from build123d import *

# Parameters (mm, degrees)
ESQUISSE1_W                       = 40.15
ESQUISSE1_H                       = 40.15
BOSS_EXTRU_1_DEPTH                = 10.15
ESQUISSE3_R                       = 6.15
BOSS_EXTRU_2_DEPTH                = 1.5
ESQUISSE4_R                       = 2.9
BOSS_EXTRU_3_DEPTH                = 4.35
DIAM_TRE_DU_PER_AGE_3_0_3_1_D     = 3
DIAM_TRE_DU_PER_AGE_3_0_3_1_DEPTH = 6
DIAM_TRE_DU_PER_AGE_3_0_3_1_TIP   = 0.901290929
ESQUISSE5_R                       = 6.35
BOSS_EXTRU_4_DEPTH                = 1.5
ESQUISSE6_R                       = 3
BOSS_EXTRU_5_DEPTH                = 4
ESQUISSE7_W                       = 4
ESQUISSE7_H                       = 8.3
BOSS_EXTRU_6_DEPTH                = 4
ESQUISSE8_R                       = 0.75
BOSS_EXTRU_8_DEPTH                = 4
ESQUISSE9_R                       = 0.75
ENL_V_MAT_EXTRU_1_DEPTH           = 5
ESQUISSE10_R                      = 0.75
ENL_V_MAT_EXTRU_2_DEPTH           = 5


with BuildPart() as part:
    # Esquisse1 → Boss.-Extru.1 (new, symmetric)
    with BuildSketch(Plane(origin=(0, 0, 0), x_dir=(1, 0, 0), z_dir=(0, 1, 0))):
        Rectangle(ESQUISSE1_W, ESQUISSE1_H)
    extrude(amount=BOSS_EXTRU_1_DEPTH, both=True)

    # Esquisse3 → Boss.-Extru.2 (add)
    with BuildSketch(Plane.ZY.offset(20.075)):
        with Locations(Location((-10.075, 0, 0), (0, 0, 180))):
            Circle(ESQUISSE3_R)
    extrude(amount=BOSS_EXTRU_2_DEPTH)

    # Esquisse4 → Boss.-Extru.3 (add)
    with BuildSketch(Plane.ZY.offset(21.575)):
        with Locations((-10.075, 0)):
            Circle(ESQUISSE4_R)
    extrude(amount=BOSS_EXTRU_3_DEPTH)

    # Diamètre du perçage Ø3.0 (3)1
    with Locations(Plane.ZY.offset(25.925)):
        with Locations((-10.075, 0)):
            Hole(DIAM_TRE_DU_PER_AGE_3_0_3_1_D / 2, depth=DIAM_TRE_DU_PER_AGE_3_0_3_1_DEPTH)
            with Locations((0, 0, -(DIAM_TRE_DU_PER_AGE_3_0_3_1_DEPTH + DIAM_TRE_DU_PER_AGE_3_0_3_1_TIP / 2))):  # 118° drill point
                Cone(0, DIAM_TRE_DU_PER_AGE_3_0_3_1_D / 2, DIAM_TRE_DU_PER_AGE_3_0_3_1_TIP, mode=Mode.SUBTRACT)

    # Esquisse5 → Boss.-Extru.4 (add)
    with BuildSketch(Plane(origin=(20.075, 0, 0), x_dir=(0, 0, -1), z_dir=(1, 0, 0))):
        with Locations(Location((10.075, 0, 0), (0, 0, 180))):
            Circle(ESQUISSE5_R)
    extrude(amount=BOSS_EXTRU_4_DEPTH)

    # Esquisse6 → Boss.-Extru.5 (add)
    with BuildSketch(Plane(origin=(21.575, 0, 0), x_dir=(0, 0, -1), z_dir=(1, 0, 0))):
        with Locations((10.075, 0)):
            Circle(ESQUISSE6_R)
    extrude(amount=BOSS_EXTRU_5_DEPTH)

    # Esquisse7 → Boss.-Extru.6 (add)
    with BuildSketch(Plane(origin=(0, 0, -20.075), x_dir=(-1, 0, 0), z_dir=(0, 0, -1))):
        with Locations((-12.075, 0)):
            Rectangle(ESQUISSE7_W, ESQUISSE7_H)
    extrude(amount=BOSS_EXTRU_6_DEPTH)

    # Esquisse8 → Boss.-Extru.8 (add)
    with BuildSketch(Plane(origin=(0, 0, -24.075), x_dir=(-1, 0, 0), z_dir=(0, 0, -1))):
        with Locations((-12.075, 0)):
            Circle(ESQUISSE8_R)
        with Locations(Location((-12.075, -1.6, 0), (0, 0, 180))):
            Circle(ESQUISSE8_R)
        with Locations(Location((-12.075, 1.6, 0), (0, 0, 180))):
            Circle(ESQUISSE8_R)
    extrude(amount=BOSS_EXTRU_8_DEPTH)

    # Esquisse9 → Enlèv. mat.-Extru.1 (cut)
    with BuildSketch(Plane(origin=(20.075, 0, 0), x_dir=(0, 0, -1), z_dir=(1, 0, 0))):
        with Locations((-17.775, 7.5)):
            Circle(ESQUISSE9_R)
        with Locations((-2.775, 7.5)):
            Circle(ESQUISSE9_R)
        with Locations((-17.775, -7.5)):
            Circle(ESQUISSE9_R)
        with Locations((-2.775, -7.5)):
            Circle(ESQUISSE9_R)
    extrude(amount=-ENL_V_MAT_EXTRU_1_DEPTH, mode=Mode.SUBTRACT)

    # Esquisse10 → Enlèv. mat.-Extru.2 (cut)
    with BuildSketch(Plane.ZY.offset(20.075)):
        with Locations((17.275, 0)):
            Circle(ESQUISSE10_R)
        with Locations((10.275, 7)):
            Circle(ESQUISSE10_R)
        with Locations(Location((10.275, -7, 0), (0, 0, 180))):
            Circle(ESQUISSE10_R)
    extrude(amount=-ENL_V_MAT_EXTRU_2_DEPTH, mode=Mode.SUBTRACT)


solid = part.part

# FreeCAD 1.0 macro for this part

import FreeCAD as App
import Part
import Sketcher
Q = App.Units.Quantity


def add_polygon(sketch, points):
    """Adds a closed chain of lines whose ends are joined by coincident constraints."""
    first, n = sketch.GeometryCount, len(points)
    for a, b in zip(points, points[1:] + points[:1]):
        sketch.addGeometry(Part.LineSegment(App.Vector(*a, 0), App.Vector(*b, 0)), False)
    for i in range(n):
        sketch.addConstraint(Sketcher.Constraint("Coincident", first + i, 2, first + (i + 1) % n, 1))

doc = App.newDocument("Part")
params = doc.addObject("Spreadsheet::Sheet", "Params")
for row, (alias, value) in enumerate([
    ("sketch1_width", "40.15 mm"),
    ("pad1_length", "20.3 mm"),
    ("sketch2_diameter", "12.3 mm"),
    ("pad2_length", "1.5 mm"),
    ("sketch3_diameter", "5.8 mm"),
    ("pad3_length", "4.35 mm"),
    ("sketch4_diameter", "3 mm"),
    ("hole_diameter", "3 mm"),
    ("hole_depth", "6 mm"),
    ("sketch5_diameter", "12.7 mm"),
    ("pad4_length", "1.5 mm"),
    ("sketch6_diameter", "6 mm"),
    ("pad5_length", "4 mm"),
    ("sketch7_width", "4 mm"),
    ("sketch7_height", "8.3 mm"),
    ("pad6_length", "4 mm"),
    ("sketch8_diameter", "1.5 mm"),
    ("pad7_length", "4 mm"),
    ("sketch9_diameter", "1.5 mm"),
    ("pocket1_length", "5 mm"),
    ("sketch10_diameter", "1.5 mm"),
    ("pocket2_length", "5 mm"),
], start=1):
    params.set(f"A{row}", alias)
    params.set(f"B{row}", "=" + value)
    params.setAlias(f"B{row}", alias)

body = doc.addObject("PartDesign::Body", "Body")

sketch1 = body.newObject("Sketcher::SketchObject", "Sketch")
sketch1.AttachmentSupport = (doc.getObject("XZ_Plane"), [""])
sketch1.MapMode = "FlatFace"
add_polygon(sketch1, [(-20.075, -20.075), (-20.075, 20.075), (20.075, 20.075), (20.075, -20.075)])
sketch1.addConstraint(Sketcher.Constraint("Vertical", 0))
sketch1.addConstraint(Sketcher.Constraint("Horizontal", 1))
sketch1.addConstraint(Sketcher.Constraint("Vertical", 2))
sketch1.addConstraint(Sketcher.Constraint("Horizontal", 3))
sketch1.addConstraint(Sketcher.Constraint("Symmetric", 0, 2, 2, 2, -1, 1))
sketch1.addConstraint(Sketcher.Constraint("Equal", 3, 0))
sketch1.addConstraint(Sketcher.Constraint("DistanceX", 1, 1, 1, 2, Q("40.15 mm")))
sketch1.setExpression("Constraints[10]", "Params.sketch1_width")
pad1 = body.newObject("PartDesign::Pad", "Pad")
pad1.Profile = sketch1
pad1.setExpression("Length", "Params.pad1_length")
pad1.Midplane = True

sketch2 = body.newObject("Sketcher::SketchObject", "Sketch001")
sketch2.AttachmentSupport = (doc.getObject("YZ_Plane"), [""])
sketch2.MapMode = "FlatFace"
sketch2.AttachmentOffset = App.Placement(App.Vector(0, 0, -20.075), App.Rotation())
sketch2.addGeometry(Part.Circle(App.Vector(0, -10.075, 0), App.Vector(0, 0, 1), 6.15), False)
sketch2.addConstraint(Sketcher.Constraint("PointOnObject", 0, 3, -2))
sketch2.addConstraint(Sketcher.Constraint("Diameter", 0, Q("12.3 mm")))
sketch2.addConstraint(Sketcher.Constraint("DistanceY", 0, 3, -1, 1, Q("10.075 mm")))
sketch2.setExpression("Constraints[1]", "Params.sketch2_diameter")
pad2 = body.newObject("PartDesign::Pad", "Pad001")
pad2.Profile = sketch2
pad2.setExpression("Length", "Params.pad2_length")
pad2.Reversed = True

sketch3 = body.newObject("Sketcher::SketchObject", "Sketch002")
sketch3.AttachmentSupport = (doc.getObject("YZ_Plane"), [""])
sketch3.MapMode = "FlatFace"
sketch3.AttachmentOffset = App.Placement(App.Vector(0, 0, -21.575), App.Rotation())
sketch3.addGeometry(Part.Circle(App.Vector(0, -10.075, 0), App.Vector(0, 0, 1), 2.9), False)
sketch3.addConstraint(Sketcher.Constraint("PointOnObject", 0, 3, -2))
sketch3.addConstraint(Sketcher.Constraint("Diameter", 0, Q("5.8 mm")))
sketch3.addConstraint(Sketcher.Constraint("DistanceY", 0, 3, -1, 1, Q("10.075 mm")))
sketch3.setExpression("Constraints[1]", "Params.sketch3_diameter")
pad3 = body.newObject("PartDesign::Pad", "Pad002")
pad3.Profile = sketch3
pad3.setExpression("Length", "Params.pad3_length")
pad3.Reversed = True

sketch4 = body.newObject("Sketcher::SketchObject", "Sketch003")
sketch4.AttachmentSupport = (doc.getObject("YZ_Plane"), [""])
sketch4.MapMode = "FlatFace"
sketch4.AttachmentOffset = App.Placement(App.Vector(0, 0, -25.925), App.Rotation())
sketch4.addGeometry(Part.Circle(App.Vector(0, -10.075, 0), App.Vector(0, 0, 1), 1.5), False)
sketch4.addConstraint(Sketcher.Constraint("PointOnObject", 0, 3, -2))
sketch4.addConstraint(Sketcher.Constraint("Diameter", 0, Q("3 mm")))
sketch4.addConstraint(Sketcher.Constraint("DistanceY", 0, 3, -1, 1, Q("10.075 mm")))
sketch4.setExpression("Constraints[1]", "Params.sketch4_diameter")
doc.recompute()
hole = body.newObject("PartDesign::Hole", "Hole")
hole.Profile = sketch4
hole.ThreadType = "None"
hole.setExpression("Diameter", "Params.hole_diameter")
hole.DepthType = "Dimension"
hole.setExpression("Depth", "Params.hole_depth")
hole.DrillPoint = "Angled"
hole.DrillPointAngle = 118
hole.Reversed = True

sketch5 = body.newObject("Sketcher::SketchObject", "Sketch004")
sketch5.AttachmentSupport = (doc.getObject("YZ_Plane"), [""])
sketch5.MapMode = "FlatFace"
sketch5.AttachmentOffset = App.Placement(App.Vector(0, 0, 20.075), App.Rotation())
sketch5.addGeometry(Part.Circle(App.Vector(0, -10.075, 0), App.Vector(0, 0, 1), 6.35), False)
sketch5.addConstraint(Sketcher.Constraint("PointOnObject", 0, 3, -2))
sketch5.addConstraint(Sketcher.Constraint("Diameter", 0, Q("12.7 mm")))
sketch5.addConstraint(Sketcher.Constraint("DistanceY", 0, 3, -1, 1, Q("10.075 mm")))
sketch5.setExpression("Constraints[1]", "Params.sketch5_diameter")
pad4 = body.newObject("PartDesign::Pad", "Pad003")
pad4.Profile = sketch5
pad4.setExpression("Length", "Params.pad4_length")

sketch6 = body.newObject("Sketcher::SketchObject", "Sketch005")
sketch6.AttachmentSupport = (doc.getObject("YZ_Plane"), [""])
sketch6.MapMode = "FlatFace"
sketch6.AttachmentOffset = App.Placement(App.Vector(0, 0, 21.575), App.Rotation())
sketch6.addGeometry(Part.Circle(App.Vector(0, -10.075, 0), App.Vector(0, 0, 1), 3), False)
sketch6.addConstraint(Sketcher.Constraint("PointOnObject", 0, 3, -2))
sketch6.addConstraint(Sketcher.Constraint("Diameter", 0, Q("6 mm")))
sketch6.addConstraint(Sketcher.Constraint("DistanceY", 0, 3, -1, 1, Q("10.075 mm")))
sketch6.setExpression("Constraints[1]", "Params.sketch6_diameter")
pad5 = body.newObject("PartDesign::Pad", "Pad004")
pad5.Profile = sketch6
pad5.setExpression("Length", "Params.pad5_length")

sketch7 = body.newObject("Sketcher::SketchObject", "Sketch006")
sketch7.AttachmentSupport = (doc.getObject("XY_Plane"), [""])
sketch7.MapMode = "FlatFace"
sketch7.AttachmentOffset = App.Placement(App.Vector(0, 0, -20.075), App.Rotation())
add_polygon(sketch7, [(14.075, 4.15), (14.075, -4.15), (10.075, -4.15), (10.075, 4.15)])
sketch7.addConstraint(Sketcher.Constraint("Vertical", 0))
sketch7.addConstraint(Sketcher.Constraint("Horizontal", 1))
sketch7.addConstraint(Sketcher.Constraint("Vertical", 2))
sketch7.addConstraint(Sketcher.Constraint("Horizontal", 3))
sketch7.addConstraint(Sketcher.Constraint("DistanceX", 1, 2, 1, 1, Q("4 mm")))
sketch7.addConstraint(Sketcher.Constraint("DistanceY", 0, 2, 0, 1, Q("8.3 mm")))
sketch7.addConstraint(Sketcher.Constraint("DistanceY", 0, 2, -1, 1, Q("4.15 mm")))
sketch7.addConstraint(Sketcher.Constraint("DistanceX", -1, 1, 0, 2, Q("14.075 mm")))
sketch7.setExpression("Constraints[8]", "Params.sketch7_width")
sketch7.setExpression("Constraints[9]", "Params.sketch7_height")
pad6 = body.newObject("PartDesign::Pad", "Pad005")
pad6.Profile = sketch7
pad6.setExpression("Length", "Params.pad6_length")
pad6.Reversed = True

sketch8 = body.newObject("Sketcher::SketchObject", "Sketch007")
sketch8.AttachmentSupport = (doc.getObject("XY_Plane"), [""])
sketch8.MapMode = "FlatFace"
sketch8.AttachmentOffset = App.Placement(App.Vector(0, 0, -24.075), App.Rotation())
sketch8.addGeometry(Part.Circle(App.Vector(12.075, 0, 0), App.Vector(0, 0, 1), 0.75), False)
sketch8.addGeometry(Part.Circle(App.Vector(12.075, -1.6, 0), App.Vector(0, 0, 1), 0.75), False)
sketch8.addGeometry(Part.Circle(App.Vector(12.075, 1.6, 0), App.Vector(0, 0, 1), 0.75), False)
sketch8.addConstraint(Sketcher.Constraint("Equal", 0, 1))
sketch8.addConstraint(Sketcher.Constraint("Equal", 1, 2))
sketch8.addConstraint(Sketcher.Constraint("Symmetric", 1, 3, 2, 3, -1))
sketch8.addConstraint(Sketcher.Constraint("PointOnObject", 0, 3, -1))
sketch8.addConstraint(Sketcher.Constraint("Vertical", 0, 3, 1, 3))
sketch8.addConstraint(Sketcher.Constraint("Diameter", 0, Q("1.5 mm")))
sketch8.addConstraint(Sketcher.Constraint("DistanceY", 1, 3, -1, 1, Q("1.6 mm")))
sketch8.addConstraint(Sketcher.Constraint("DistanceX", -1, 1, 0, 3, Q("12.075 mm")))
sketch8.setExpression("Constraints[5]", "Params.sketch8_diameter")
pad7 = body.newObject("PartDesign::Pad", "Pad006")
pad7.Profile = sketch8
pad7.setExpression("Length", "Params.pad7_length")
pad7.Reversed = True

sketch9 = body.newObject("Sketcher::SketchObject", "Sketch008")
sketch9.AttachmentSupport = (doc.getObject("YZ_Plane"), [""])
sketch9.MapMode = "FlatFace"
sketch9.AttachmentOffset = App.Placement(App.Vector(0, 0, 20.075), App.Rotation())
sketch9.addGeometry(Part.Circle(App.Vector(7.5, 17.775, 0), App.Vector(0, 0, 1), 0.75), False)
sketch9.addGeometry(Part.Circle(App.Vector(7.5, 2.775, 0), App.Vector(0, 0, 1), 0.75), False)
sketch9.addGeometry(Part.Circle(App.Vector(-7.5, 17.775, 0), App.Vector(0, 0, 1), 0.75), False)
sketch9.addGeometry(Part.Circle(App.Vector(-7.5, 2.775, 0), App.Vector(0, 0, 1), 0.75), False)
sketch9.addConstraint(Sketcher.Constraint("Equal", 0, 1))
sketch9.addConstraint(Sketcher.Constraint("Equal", 1, 2))
sketch9.addConstraint(Sketcher.Constraint("Equal", 2, 3))
sketch9.addConstraint(Sketcher.Constraint("Symmetric", 0, 3, 2, 3, -2))
sketch9.addConstraint(Sketcher.Constraint("Symmetric", 1, 3, 3, 3, -2))
sketch9.addConstraint(Sketcher.Constraint("Vertical", 0, 3, 1, 3))
sketch9.addConstraint(Sketcher.Constraint("Diameter", 0, Q("1.5 mm")))
sketch9.addConstraint(Sketcher.Constraint("DistanceY", 1, 3, 0, 3, Q("15 mm")))
sketch9.addConstraint(Sketcher.Constraint("DistanceX", 2, 3, 0, 3, Q("15 mm")))
sketch9.addConstraint(Sketcher.Constraint("DistanceY", -1, 1, 0, 3, Q("17.775 mm")))
sketch9.setExpression("Constraints[6]", "Params.sketch9_diameter")
pocket1 = body.newObject("PartDesign::Pocket", "Pocket")
pocket1.Profile = sketch9
pocket1.setExpression("Length", "Params.pocket1_length")

sketch10 = body.newObject("Sketcher::SketchObject", "Sketch009")
sketch10.AttachmentSupport = (doc.getObject("YZ_Plane"), [""])
sketch10.MapMode = "FlatFace"
sketch10.AttachmentOffset = App.Placement(App.Vector(0, 0, -20.075), App.Rotation())
sketch10.addGeometry(Part.Circle(App.Vector(0, 17.275, 0), App.Vector(0, 0, 1), 0.75), False)
sketch10.addGeometry(Part.Circle(App.Vector(7, 10.275, 0), App.Vector(0, 0, 1), 0.75), False)
sketch10.addGeometry(Part.Circle(App.Vector(-7, 10.275, 0), App.Vector(0, 0, 1), 0.75), False)
sketch10.addConstraint(Sketcher.Constraint("Equal", 0, 1))
sketch10.addConstraint(Sketcher.Constraint("Equal", 1, 2))
sketch10.addConstraint(Sketcher.Constraint("Symmetric", 1, 3, 2, 3, -2))
sketch10.addConstraint(Sketcher.Constraint("PointOnObject", 0, 3, -2))
sketch10.addConstraint(Sketcher.Constraint("Diameter", 0, Q("1.5 mm")))
sketch10.addConstraint(Sketcher.Constraint("DistanceX", -1, 1, 1, 3, Q("7 mm")))
sketch10.addConstraint(Sketcher.Constraint("DistanceY", 1, 3, 0, 3, Q("7 mm")))
sketch10.addConstraint(Sketcher.Constraint("DistanceY", -1, 1, 0, 3, Q("17.275 mm")))
sketch10.setExpression("Constraints[4]", "Params.sketch10_diameter")
pocket2 = body.newObject("PartDesign::Pocket", "Pocket001")
pocket2.Profile = sketch10
pocket2.setExpression("Length", "Params.pocket2_length")
pocket2.Reversed = True

doc.recompute()
